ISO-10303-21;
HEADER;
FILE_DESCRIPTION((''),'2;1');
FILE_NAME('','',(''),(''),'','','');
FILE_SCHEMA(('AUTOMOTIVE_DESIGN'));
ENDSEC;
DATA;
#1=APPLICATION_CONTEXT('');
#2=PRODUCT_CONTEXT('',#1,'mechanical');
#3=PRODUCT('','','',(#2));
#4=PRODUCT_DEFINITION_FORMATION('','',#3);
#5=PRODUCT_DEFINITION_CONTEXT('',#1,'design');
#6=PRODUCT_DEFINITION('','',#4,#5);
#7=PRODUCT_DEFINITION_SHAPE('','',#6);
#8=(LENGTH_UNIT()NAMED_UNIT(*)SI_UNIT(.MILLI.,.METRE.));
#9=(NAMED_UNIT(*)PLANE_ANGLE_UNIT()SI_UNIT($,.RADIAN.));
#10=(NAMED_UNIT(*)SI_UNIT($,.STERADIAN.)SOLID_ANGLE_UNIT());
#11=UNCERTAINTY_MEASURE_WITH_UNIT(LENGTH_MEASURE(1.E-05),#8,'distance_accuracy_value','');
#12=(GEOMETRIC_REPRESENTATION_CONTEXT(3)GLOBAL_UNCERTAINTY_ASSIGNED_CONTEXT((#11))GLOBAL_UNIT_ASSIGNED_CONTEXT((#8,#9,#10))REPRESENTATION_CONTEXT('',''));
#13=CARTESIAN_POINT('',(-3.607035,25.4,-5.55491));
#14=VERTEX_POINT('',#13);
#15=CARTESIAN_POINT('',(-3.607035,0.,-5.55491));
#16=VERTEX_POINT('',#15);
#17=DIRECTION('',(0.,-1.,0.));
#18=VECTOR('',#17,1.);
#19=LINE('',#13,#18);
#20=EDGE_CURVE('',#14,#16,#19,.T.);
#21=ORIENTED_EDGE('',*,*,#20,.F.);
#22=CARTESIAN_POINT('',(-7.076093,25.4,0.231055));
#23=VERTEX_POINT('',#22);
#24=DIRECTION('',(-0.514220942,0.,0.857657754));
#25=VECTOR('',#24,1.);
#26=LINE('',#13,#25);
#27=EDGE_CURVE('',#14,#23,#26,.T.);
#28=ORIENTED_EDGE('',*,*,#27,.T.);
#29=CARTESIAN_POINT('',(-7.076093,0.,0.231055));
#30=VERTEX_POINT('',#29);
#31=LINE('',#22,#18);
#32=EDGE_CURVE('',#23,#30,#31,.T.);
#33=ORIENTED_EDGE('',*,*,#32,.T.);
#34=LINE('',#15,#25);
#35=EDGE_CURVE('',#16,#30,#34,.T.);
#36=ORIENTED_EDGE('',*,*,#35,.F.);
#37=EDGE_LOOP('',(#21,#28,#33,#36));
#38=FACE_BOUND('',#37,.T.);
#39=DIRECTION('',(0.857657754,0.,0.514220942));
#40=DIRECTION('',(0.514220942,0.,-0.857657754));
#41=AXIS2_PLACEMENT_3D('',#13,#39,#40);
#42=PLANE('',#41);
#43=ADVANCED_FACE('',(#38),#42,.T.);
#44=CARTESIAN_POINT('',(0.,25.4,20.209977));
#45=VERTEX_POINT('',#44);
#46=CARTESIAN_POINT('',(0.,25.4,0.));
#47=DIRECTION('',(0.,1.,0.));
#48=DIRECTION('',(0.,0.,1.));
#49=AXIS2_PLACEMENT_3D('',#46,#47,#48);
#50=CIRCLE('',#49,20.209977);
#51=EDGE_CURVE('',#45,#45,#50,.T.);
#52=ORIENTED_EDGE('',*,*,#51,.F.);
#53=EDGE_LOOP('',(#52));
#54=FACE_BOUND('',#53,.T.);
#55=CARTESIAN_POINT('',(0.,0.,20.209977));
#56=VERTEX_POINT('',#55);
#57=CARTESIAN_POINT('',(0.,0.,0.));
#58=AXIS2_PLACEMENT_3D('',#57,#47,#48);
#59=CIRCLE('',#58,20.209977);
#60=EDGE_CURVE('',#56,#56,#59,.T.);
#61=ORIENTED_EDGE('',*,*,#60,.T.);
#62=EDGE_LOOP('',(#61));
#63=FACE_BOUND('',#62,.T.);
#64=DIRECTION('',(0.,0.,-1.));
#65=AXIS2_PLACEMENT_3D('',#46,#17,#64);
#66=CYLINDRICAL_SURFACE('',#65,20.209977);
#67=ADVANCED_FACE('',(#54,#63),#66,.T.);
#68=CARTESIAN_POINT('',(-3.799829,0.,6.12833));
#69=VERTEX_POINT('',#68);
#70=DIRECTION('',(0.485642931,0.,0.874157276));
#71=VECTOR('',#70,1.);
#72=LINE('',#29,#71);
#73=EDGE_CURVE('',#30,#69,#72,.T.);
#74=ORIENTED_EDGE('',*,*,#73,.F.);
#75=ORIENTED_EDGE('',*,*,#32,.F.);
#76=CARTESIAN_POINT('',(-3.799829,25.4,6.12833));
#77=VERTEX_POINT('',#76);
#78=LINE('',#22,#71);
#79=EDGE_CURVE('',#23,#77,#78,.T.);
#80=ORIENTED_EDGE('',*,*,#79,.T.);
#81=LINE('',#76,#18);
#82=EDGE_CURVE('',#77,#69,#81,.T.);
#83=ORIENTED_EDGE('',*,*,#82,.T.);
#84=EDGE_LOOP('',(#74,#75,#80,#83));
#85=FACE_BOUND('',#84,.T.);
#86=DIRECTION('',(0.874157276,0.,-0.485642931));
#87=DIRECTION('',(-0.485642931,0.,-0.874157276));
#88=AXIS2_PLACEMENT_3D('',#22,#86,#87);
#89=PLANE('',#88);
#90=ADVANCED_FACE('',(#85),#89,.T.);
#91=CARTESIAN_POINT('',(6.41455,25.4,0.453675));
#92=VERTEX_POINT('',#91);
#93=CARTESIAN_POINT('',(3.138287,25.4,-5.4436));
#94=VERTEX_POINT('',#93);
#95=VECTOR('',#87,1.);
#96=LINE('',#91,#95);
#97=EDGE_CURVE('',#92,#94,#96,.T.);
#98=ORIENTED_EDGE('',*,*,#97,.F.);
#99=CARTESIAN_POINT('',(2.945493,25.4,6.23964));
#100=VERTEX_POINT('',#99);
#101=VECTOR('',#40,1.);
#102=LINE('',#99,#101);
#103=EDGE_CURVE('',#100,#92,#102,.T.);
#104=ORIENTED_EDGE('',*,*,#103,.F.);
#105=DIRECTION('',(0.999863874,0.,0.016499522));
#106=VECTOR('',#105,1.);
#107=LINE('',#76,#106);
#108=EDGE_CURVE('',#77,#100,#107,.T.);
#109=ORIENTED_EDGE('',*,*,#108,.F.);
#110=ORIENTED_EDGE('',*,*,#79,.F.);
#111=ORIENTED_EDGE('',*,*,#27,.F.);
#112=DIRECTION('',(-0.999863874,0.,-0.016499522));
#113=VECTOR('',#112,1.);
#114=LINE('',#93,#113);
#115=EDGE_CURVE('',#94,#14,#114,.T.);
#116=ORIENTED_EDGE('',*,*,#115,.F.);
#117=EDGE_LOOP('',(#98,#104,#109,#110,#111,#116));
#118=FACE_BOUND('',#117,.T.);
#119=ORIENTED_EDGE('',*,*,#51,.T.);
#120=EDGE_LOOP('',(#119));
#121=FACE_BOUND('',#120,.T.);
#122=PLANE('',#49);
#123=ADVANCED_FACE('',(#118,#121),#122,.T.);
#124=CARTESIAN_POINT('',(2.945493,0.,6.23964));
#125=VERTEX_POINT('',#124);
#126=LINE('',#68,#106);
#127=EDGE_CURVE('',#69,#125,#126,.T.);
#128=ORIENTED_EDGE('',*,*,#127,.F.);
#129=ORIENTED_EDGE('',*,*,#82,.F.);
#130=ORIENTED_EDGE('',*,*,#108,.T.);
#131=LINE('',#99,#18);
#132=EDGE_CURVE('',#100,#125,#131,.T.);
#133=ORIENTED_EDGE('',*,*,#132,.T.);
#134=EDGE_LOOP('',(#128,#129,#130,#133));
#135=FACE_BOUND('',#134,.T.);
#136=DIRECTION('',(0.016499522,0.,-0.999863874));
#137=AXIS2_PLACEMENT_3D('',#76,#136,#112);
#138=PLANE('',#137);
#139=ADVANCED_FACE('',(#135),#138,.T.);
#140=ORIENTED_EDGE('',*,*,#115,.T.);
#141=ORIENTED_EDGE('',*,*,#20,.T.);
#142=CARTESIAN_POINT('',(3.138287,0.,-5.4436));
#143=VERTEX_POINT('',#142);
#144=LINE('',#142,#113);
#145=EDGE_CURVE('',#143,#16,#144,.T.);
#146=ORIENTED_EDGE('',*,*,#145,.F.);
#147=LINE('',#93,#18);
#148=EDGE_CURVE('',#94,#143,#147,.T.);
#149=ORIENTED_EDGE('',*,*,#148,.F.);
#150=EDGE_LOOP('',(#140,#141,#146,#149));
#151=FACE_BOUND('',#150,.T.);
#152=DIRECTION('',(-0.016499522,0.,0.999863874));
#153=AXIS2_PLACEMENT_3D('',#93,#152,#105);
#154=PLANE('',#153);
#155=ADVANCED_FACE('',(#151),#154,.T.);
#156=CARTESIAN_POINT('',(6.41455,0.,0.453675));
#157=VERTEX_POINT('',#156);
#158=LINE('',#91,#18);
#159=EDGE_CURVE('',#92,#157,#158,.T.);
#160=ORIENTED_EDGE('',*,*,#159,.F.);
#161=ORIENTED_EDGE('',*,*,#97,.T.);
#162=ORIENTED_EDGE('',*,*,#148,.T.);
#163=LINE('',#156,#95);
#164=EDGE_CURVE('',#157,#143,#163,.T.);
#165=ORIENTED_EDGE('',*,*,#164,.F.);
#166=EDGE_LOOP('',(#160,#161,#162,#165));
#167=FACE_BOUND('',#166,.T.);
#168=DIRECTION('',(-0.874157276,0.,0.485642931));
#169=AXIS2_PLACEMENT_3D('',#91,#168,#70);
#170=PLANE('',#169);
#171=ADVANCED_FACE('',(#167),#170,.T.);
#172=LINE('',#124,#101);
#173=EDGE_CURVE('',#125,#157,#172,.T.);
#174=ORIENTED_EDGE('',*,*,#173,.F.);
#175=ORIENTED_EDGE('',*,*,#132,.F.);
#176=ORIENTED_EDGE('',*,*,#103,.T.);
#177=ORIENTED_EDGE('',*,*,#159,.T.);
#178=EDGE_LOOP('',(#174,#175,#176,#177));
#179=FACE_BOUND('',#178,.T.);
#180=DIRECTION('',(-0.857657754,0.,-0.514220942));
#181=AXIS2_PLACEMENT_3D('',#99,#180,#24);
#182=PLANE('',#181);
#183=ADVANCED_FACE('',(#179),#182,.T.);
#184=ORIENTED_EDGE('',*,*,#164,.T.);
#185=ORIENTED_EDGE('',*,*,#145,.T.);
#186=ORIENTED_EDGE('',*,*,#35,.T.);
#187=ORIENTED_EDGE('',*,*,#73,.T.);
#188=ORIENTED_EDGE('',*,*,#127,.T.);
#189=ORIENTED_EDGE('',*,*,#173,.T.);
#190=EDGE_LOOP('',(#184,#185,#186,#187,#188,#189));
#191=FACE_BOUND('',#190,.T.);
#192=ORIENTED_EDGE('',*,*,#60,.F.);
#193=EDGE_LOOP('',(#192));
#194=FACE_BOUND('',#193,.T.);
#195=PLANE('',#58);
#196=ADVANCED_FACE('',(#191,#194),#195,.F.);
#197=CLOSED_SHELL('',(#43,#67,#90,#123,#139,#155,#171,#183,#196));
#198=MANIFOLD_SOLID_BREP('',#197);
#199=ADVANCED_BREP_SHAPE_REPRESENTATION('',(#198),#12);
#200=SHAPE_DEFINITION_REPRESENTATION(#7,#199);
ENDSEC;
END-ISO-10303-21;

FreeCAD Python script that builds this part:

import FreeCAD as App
import Part
import Sketcher
Q = App.Units.Quantity

doc = App.newDocument("Part")
body = doc.addObject("PartDesign::Body", "Body")

sketch1 = body.newObject("Sketcher::SketchObject", "Sketch")
sketch1.AttachmentSupport = (doc.getObject("XZ_Plane"), [""])
sketch1.MapMode = "FlatFace"
sketch1.addGeometry(Part.Circle(App.Vector(0, 0, 0), App.Vector(0, 0, 1), 20), False)
sketch1.addGeometry(Part.LineSegment(App.Vector(6, 0, 0), App.Vector(3, 6, 0)), False)
sketch1.addGeometry(Part.LineSegment(App.Vector(3, 6, 0), App.Vector(-4, 6, 0)), False)
sketch1.addGeometry(Part.LineSegment(App.Vector(-4, 6, 0), App.Vector(-7, 0, 0)), False)
sketch1.addGeometry(Part.LineSegment(App.Vector(-7, 0, 0), App.Vector(-4, -6, 0)), False)
sketch1.addGeometry(Part.LineSegment(App.Vector(-4, -6, 0), App.Vector(3, -5, 0)), False)
sketch1.addGeometry(Part.LineSegment(App.Vector(3, -5, 0), App.Vector(6, 0, 0)), False)
sketch1.addConstraint(Sketcher.Constraint("Coincident", 1, 2, 2, 1))
sketch1.addConstraint(Sketcher.Constraint("Coincident", 2, 2, 3, 1))
sketch1.addConstraint(Sketcher.Constraint("Coincident", 3, 2, 4, 1))
sketch1.addConstraint(Sketcher.Constraint("Coincident", 4, 2, 5, 1))
sketch1.addConstraint(Sketcher.Constraint("Coincident", 5, 2, 6, 1))
sketch1.addConstraint(Sketcher.Constraint("Coincident", 6, 2, 1, 1))
sketch1.addConstraint(Sketcher.Constraint("Coincident", 0, 3, -1, 1))
sketch1.addConstraint(Sketcher.Constraint("Parallel", 1, 4))
sketch1.addConstraint(Sketcher.Constraint("Parallel", 2, 5))
sketch1.addConstraint(Sketcher.Constraint("Parallel", 3, 6))
sketch1.addConstraint(Sketcher.Constraint("Equal", 1, 2))
sketch1.addConstraint(Sketcher.Constraint("Equal", 2, 3))
sketch1.addConstraint(Sketcher.Constraint("Equal", 3, 4))
sketch1.addConstraint(Sketcher.Constraint("Distance", 1, Q("0.2656 in")))
sketch1.addConstraint(Sketcher.Constraint("Diameter", 0, 40.419955))
sketch1.addConstraint(Sketcher.Constraint("DistanceY", 5, 2, -1, 1, 5.4436))
sketch1.addConstraint(Sketcher.Constraint("DistanceY", -1, 1, 1, 2, 6.23964))
sketch1.addConstraint(Sketcher.Constraint("DistanceX", 2, 2, -1, 1, 3.799829))
sketch1.addConstraint(Sketcher.Constraint("DistanceY", -1, 1, 2, 2, 6.12833))
sketch1.addConstraint(Sketcher.Constraint("DistanceX", -1, 1, 6, 2, 6.41455))
pad1 = body.newObject("PartDesign::Pad", "Pad")
pad1.Profile = sketch1
pad1.Length = Q("1 in")
pad1.Reversed = True

doc.recompute()
